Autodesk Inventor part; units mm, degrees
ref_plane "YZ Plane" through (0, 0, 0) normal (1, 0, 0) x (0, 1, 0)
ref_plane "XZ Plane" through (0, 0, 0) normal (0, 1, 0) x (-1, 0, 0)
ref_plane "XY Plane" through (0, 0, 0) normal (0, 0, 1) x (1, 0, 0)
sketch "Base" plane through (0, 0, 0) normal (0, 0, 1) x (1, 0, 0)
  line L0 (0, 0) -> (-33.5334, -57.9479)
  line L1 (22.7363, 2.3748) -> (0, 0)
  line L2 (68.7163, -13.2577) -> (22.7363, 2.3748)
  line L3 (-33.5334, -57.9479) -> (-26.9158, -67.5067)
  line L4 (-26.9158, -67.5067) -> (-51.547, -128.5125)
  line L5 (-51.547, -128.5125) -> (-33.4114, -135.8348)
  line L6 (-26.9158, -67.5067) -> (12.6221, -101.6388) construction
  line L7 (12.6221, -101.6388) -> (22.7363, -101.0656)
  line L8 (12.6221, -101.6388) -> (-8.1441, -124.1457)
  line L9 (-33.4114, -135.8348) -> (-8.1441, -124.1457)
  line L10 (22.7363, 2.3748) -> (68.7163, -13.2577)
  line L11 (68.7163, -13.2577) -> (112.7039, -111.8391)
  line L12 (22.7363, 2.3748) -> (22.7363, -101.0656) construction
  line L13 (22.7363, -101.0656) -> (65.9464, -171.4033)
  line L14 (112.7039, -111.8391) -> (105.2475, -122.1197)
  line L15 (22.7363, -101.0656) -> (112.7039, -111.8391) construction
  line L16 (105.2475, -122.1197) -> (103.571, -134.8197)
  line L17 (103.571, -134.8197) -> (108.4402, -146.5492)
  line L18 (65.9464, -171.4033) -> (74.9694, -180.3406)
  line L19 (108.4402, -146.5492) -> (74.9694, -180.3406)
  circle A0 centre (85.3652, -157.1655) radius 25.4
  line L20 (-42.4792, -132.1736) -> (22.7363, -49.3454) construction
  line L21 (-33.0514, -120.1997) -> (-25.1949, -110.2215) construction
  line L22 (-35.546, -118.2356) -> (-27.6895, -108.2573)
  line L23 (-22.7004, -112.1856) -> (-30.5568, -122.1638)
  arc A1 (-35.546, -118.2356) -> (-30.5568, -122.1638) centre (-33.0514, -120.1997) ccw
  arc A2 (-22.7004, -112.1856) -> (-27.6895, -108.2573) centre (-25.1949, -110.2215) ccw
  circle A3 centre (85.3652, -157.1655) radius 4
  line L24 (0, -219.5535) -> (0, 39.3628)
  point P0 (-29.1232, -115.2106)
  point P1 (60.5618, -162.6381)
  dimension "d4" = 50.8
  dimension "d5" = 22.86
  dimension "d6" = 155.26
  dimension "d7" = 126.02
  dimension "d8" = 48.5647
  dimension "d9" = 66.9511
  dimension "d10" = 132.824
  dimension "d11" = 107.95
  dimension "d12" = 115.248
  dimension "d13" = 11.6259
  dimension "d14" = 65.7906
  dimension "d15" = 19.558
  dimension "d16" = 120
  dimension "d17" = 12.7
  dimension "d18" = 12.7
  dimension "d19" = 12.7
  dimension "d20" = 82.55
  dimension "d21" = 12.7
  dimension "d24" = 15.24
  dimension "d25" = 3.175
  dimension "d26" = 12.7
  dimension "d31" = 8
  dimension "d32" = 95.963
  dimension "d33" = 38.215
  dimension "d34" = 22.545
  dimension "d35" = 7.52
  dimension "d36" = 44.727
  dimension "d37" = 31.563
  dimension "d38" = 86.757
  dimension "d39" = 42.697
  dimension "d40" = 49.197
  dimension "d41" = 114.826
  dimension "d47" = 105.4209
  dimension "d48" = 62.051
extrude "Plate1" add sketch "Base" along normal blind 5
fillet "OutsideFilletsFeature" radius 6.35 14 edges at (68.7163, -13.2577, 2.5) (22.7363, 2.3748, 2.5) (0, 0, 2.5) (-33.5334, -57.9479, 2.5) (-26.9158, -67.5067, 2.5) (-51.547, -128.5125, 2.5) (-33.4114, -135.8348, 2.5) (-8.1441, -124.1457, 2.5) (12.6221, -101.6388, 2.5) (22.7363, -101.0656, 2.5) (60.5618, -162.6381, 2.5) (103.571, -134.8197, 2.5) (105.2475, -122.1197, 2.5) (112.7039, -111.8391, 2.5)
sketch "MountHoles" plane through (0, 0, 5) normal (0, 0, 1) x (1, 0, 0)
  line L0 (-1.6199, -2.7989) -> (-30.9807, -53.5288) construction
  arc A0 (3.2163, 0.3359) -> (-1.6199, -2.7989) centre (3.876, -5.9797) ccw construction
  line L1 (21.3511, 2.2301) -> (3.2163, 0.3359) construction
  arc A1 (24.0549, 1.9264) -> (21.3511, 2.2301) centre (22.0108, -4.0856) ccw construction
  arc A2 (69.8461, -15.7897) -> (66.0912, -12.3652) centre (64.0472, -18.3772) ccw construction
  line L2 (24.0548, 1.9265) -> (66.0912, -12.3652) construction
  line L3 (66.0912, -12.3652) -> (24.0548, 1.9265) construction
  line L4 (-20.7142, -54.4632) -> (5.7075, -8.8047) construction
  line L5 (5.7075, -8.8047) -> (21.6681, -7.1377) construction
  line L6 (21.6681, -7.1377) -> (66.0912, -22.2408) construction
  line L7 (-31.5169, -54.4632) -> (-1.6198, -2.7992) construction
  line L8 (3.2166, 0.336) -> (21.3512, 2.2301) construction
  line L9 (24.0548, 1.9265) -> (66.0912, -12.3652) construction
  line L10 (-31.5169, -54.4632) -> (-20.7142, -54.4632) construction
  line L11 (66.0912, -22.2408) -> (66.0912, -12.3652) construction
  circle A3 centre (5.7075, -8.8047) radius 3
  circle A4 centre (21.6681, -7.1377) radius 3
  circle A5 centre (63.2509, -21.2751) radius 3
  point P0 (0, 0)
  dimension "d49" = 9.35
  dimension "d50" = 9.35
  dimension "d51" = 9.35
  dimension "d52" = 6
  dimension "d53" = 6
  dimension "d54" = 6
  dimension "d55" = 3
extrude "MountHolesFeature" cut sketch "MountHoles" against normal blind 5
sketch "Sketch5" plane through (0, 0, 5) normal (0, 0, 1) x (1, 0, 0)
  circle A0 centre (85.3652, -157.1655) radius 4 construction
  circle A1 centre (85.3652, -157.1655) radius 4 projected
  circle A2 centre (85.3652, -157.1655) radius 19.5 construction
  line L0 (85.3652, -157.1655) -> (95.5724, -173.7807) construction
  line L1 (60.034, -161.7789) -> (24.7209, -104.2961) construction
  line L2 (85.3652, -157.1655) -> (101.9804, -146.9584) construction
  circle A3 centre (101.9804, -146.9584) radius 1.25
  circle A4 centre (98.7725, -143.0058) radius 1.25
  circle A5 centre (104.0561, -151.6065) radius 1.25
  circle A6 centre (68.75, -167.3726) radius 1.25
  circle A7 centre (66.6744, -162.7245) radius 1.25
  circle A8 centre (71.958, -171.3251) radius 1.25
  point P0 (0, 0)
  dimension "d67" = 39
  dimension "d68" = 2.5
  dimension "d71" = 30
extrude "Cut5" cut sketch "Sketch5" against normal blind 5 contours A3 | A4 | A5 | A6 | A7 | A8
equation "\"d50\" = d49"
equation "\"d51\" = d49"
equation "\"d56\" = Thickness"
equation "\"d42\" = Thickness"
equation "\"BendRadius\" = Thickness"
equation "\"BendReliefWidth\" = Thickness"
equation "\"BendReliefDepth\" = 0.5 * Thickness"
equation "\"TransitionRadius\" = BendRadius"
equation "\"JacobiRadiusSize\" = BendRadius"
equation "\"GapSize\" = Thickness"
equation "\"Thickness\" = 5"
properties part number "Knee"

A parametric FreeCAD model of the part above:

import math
import FreeCAD as App
import Part
import Sketcher
Q = App.Units.Quantity


def edges_at(feature, points):
    """Names of the edges that pass closest to the given points."""
    edges = feature.Shape.Edges
    near = lambda p: min(range(len(edges)), key=lambda i: edges[i].distToShape(Part.Vertex(*p))[0])
    return sorted({f"Edge{near(p) + 1}" for p in points})

doc = App.newDocument("Part")
body = doc.addObject("PartDesign::Body", "Body")

sketch1 = body.newObject("Sketcher::SketchObject", "Sketch")
sketch1.AttachmentSupport = (doc.getObject("XY_Plane"), [""])
sketch1.MapMode = "FlatFace"
sketch1.addGeometry(Part.LineSegment(App.Vector(-8.1441, -124.1457, 0), App.Vector(12.6221, -101.6388, 0)), False)
sketch1.addGeometry(Part.LineSegment(App.Vector(12.6221, -101.6388, 0), App.Vector(22.7363, -101.0656, 0)), False)
sketch1.addGeometry(Part.LineSegment(App.Vector(22.7363, -101.0656, 0), App.Vector(60.561775, -162.638171, 0)), False)
sketch1.addGeometry(Part.ArcOfCircle(Part.Circle(App.Vector(85.3652, -157.1655, 0), App.Vector(0, 0, 1), 25.4), math.radians(-167.557515), math.radians(24.706119)), False)
sketch1.addGeometry(Part.LineSegment(App.Vector(108.4402, -146.5492, 0), App.Vector(103.571, -134.8197, 0)), False)
sketch1.addGeometry(Part.LineSegment(App.Vector(103.571, -134.8197, 0), App.Vector(105.2475, -122.1197, 0)), False)
sketch1.addGeometry(Part.LineSegment(App.Vector(105.2475, -122.1197, 0), App.Vector(112.7039, -111.8391, 0)), False)
sketch1.addGeometry(Part.LineSegment(App.Vector(112.7039, -111.8391, 0), App.Vector(68.7163, -13.2577, 0)), False)
sketch1.addGeometry(Part.LineSegment(App.Vector(68.7163, -13.2577, 0), App.Vector(22.7363, 2.3748, 0)), False)
sketch1.addGeometry(Part.LineSegment(App.Vector(22.7363, 2.3748, 0), App.Vector(0, 0, 0)), False)
sketch1.addGeometry(Part.LineSegment(App.Vector(0, 0, 0), App.Vector(-33.5334, -57.9479, 0)), False)
sketch1.addGeometry(Part.LineSegment(App.Vector(-33.5334, -57.9479, 0), App.Vector(-26.9158, -67.5067, 0)), False)
sketch1.addGeometry(Part.LineSegment(App.Vector(-26.9158, -67.5067, 0), App.Vector(-51.547, -128.5125, 0)), False)
sketch1.addGeometry(Part.LineSegment(App.Vector(-51.547, -128.5125, 0), App.Vector(-33.4114, -135.8348, 0)), False)
sketch1.addGeometry(Part.LineSegment(App.Vector(-33.4114, -135.8348, 0), App.Vector(-8.1441, -124.1457, 0)), False)
sketch1.addGeometry(Part.ArcOfCircle(Part.Circle(App.Vector(-33.0514, -120.1997, 0), App.Vector(0, 0, 1), 3.175015), math.radians(141.785203), math.radians(321.785203)), False)
sketch1.addGeometry(Part.LineSegment(App.Vector(-35.546, -118.2356, 0), App.Vector(-27.6895, -108.2573, 0)), False)
sketch1.addGeometry(Part.ArcOfCircle(Part.Circle(App.Vector(-25.1949, -110.2215, 0), App.Vector(0, 0, 1), 3.174936), math.radians(-38.215913), math.radians(141.783786)), False)
sketch1.addGeometry(Part.LineSegment(App.Vector(-22.7004, -112.1856, 0), App.Vector(-30.5568, -122.1638, 0)), False)
sketch1.addGeometry(Part.Circle(App.Vector(85.3652, -157.1655, 0), App.Vector(0, 0, 1), 4), False)
sketch1.addConstraint(Sketcher.Constraint("Coincident", 0, 2, 1, 1))
sketch1.addConstraint(Sketcher.Constraint("Coincident", 1, 2, 2, 1))
sketch1.addConstraint(Sketcher.Constraint("Coincident", 2, 2, 3, 1))
sketch1.addConstraint(Sketcher.Constraint("Coincident", 3, 2, 4, 1))
sketch1.addConstraint(Sketcher.Constraint("Coincident", 4, 2, 5, 1))
sketch1.addConstraint(Sketcher.Constraint("Coincident", 5, 2, 6, 1))
sketch1.addConstraint(Sketcher.Constraint("Coincident", 6, 2, 7, 1))
sketch1.addConstraint(Sketcher.Constraint("Coincident", 7, 2, 8, 1))
sketch1.addConstraint(Sketcher.Constraint("Coincident", 8, 2, 9, 1))
sketch1.addConstraint(Sketcher.Constraint("Coincident", 9, 2, 10, 1))
sketch1.addConstraint(Sketcher.Constraint("Coincident", 10, 2, 11, 1))
sketch1.addConstraint(Sketcher.Constraint("Coincident", 11, 2, 12, 1))
sketch1.addConstraint(Sketcher.Constraint("Coincident", 12, 2, 13, 1))
sketch1.addConstraint(Sketcher.Constraint("Coincident", 13, 2, 14, 1))
sketch1.addConstraint(Sketcher.Constraint("Coincident", 14, 2, 0, 1))
sketch1.addConstraint(Sketcher.Constraint("Tangent", 15, 1, 16, 1))
sketch1.addConstraint(Sketcher.Constraint("Tangent", 16, 2, 17, 2))
sketch1.addConstraint(Sketcher.Constraint("Tangent", 17, 1, 18, 1))
sketch1.addConstraint(Sketcher.Constraint("Tangent", 18, 2, 15, 2))
sketch1.addConstraint(Sketcher.Constraint("Coincident", 9, 2, -1, 1))
sketch1.addConstraint(Sketcher.Constraint("Coincident", 19, 3, 3, 3))
sketch1.addConstraint(Sketcher.Constraint("Equal", 15, 17))
sketch1.addConstraint(Sketcher.Constraint("Perpendicular", 12, 13))
sketch1.addConstraint(Sketcher.Constraint("Vertical", 1, 2, 8, 2))
sketch1.addConstraint(Sketcher.Constraint("Equal", 4, 6))
sketch1.addConstraint(Sketcher.Constraint("Equal", 6, 16))
sketch1.addConstraint(Sketcher.Constraint("Radius", 3, Q("1 in")))
sketch1.addConstraint(Sketcher.Constraint("Radius", 15, Q("0.125 in")))
sketch1.addConstraint(Sketcher.Constraint("Distance", 4, Q("0.5 in")))
sketch1.addConstraint(Sketcher.Constraint("Distance", 9, Q("0.9 in")))
sketch1.addConstraint(Sketcher.Constraint("DistanceY", 4, 2, 5, 2, Q("0.5 in")))
sketch1.addConstraint(Sketcher.Constraint("Distance", 7, Q("4.25 in")))
sketch1.addConstraint(Sketcher.Constraint("Distance", 13, Q("0.77 in")))
sketch1.addConstraint(Sketcher.Constraint("Diameter", 19, Q("8 mm")))
sketch1.addConstraint(Sketcher.Constraint("Distance", 8, Q("1.912 in")))
sketch1.addConstraint(Sketcher.Constraint("Distance", 10, Q("66.951 mm")))
sketch1.addConstraint(Sketcher.Constraint("Distance", 11, Q("11.626 mm")))
sketch1.addConstraint(Sketcher.Constraint("Distance", 12, Q("65.7906 mm")))
sketch1.addConstraint(Sketcher.Constraint("Angle", 5, Q("82.48 deg")))
sketch1.addConstraint(Sketcher.Constraint("Distance", 2, Q("2.845 in")))
sketch1.addConstraint(Sketcher.Constraint("DistanceY", 1, 2, 7, 2, Q("3.457 in")))
sketch1.addConstraint(Sketcher.Constraint("DistanceX", 12, 2, 13, 2, Q("0.714 in")))
sketch1.addConstraint(Sketcher.Constraint("DistanceX", -1, 1, 3, 2, Q("4.2693 in")))
sketch1.addConstraint(Sketcher.Constraint("DistanceX", -1, 1, 4, 2, Q("4.0776 in")))
sketch1.addConstraint(Sketcher.Constraint("DistanceY", -1, 1, 8, 2, Q("0.0935 in")))
sketch1.addConstraint(Sketcher.Constraint("DistanceX", 12, 2, -1, 1, Q("2.0294 in")))
sketch1.addConstraint(Sketcher.Constraint("DistanceY", 16, 2, -1, 1, Q("4.2621 in")))
sketch1.addConstraint(Sketcher.Constraint("DistanceY", 18, 2, -1, 1, Q("4.8096 in")))
sketch1.addConstraint(Sketcher.Constraint("DistanceY", 3, 3, 17, 3, Q("1.8482 in")))
sketch1.addConstraint(Sketcher.Constraint("DistanceY", 17, 3, 0, 2, Q("0.3379 in")))
sketch1.addConstraint(Sketcher.Constraint("DistanceX", 0, 2, 3, 3, Q("2.8639 in")))
sketch1.addConstraint(Sketcher.Constraint("DistanceX", 0, 2, 1, 2, Q("0.3982 in")))
sketch1.addConstraint(Sketcher.Constraint("DistanceY", 15, 3, 1, 2, Q("0.7533 in")))
sketch1.addConstraint(Sketcher.Constraint("DistanceX", 12, 2, 10, 2, Q("0.7092 in")))
sketch1.addConstraint(Sketcher.Constraint("DistanceX", 17, 3, 14, 2, Q("0.6713 in")))
sketch1.addConstraint(Sketcher.Constraint("DistanceY", 14, 2, 17, 3, Q("0.5482 in")))
sketch1.addConstraint(Sketcher.Constraint("Distance", 0, Q("30.6234 mm")))
pad1 = body.newObject("PartDesign::Pad", "Pad")
pad1.Profile = sketch1
pad1.Length = 5
doc.recompute()

fillet = body.newObject("PartDesign::Fillet", "Fillet")
fillet.Base = (pad1, edges_at(pad1, [
    (68.716, -13.258, 2.5),
    (22.736, 2.375, 2.5),
    (0, 0, 2.5),
    (-33.533, -57.948, 2.5),
    (-26.916, -67.507, 2.5),
    (-51.547, -128.512, 2.5),
    (-33.411, -135.835, 2.5),
    (-8.144, -124.146, 2.5),
    (12.622, -101.639, 2.5),
    (22.736, -101.066, 2.5),
    (60.562, -162.638, 2.5),
    (103.571, -134.82, 2.5),
    (105.248, -122.12, 2.5),
    (112.704, -111.839, 2.5),
]))
fillet.Radius = Q("0.25 in")

sketch2 = body.newObject("Sketcher::SketchObject", "Sketch001")
sketch2.AttachmentSupport = (doc.getObject("XY_Plane"), [""])
sketch2.MapMode = "FlatFace"
sketch2.AttachmentOffset = App.Placement(App.Vector(0, 0, 5), App.Rotation())
sketch2.addGeometry(Part.Circle(App.Vector(5.7075, -8.8047, 0), App.Vector(0, 0, 1), 3), False)
sketch2.addGeometry(Part.Circle(App.Vector(21.6681, -7.1377, 0), App.Vector(0, 0, 1), 3), False)
sketch2.addGeometry(Part.Circle(App.Vector(63.2509, -21.2751, 0), App.Vector(0, 0, 1), 3), False)
sketch2.addConstraint(Sketcher.Constraint("Equal", 0, 1))
sketch2.addConstraint(Sketcher.Constraint("Equal", 1, 2))
sketch2.addConstraint(Sketcher.Constraint("Diameter", 0, Q("6 mm")))
sketch2.addConstraint(Sketcher.Constraint("DistanceY", 1, 3, -1, 1, Q("0.281 in")))
sketch2.addConstraint(Sketcher.Constraint("DistanceX", -1, 1, 0, 3, Q("0.2247 in")))
sketch2.addConstraint(Sketcher.Constraint("DistanceX", -1, 1, 2, 3, Q("2.4902 in")))
sketch2.addConstraint(Sketcher.Constraint("DistanceY", 2, 3, -1, 1, Q("0.8376 in")))
sketch2.addConstraint(Sketcher.Constraint("DistanceY", 0, 3, -1, 1, Q("8.8047 mm")))
sketch2.addConstraint(Sketcher.Constraint("DistanceX", -1, 1, 1, 3, Q("21.668 mm")))
pocket1 = body.newObject("PartDesign::Pocket", "Pocket")
pocket1.Profile = sketch2
pocket1.Length = 5

sketch3 = body.newObject("Sketcher::SketchObject", "Sketch002")
sketch3.AttachmentSupport = (doc.getObject("XY_Plane"), [""])
sketch3.MapMode = "FlatFace"
sketch3.AttachmentOffset = App.Placement(App.Vector(0, 0, 5), App.Rotation())
sketch3.addGeometry(Part.Circle(App.Vector(101.9804, -146.9584, 0), App.Vector(0, 0, 1), 1.25), False)
sketch3.addGeometry(Part.Circle(App.Vector(98.7725, -143.0058, 0), App.Vector(0, 0, 1), 1.25), False)
sketch3.addGeometry(Part.Circle(App.Vector(104.0561, -151.6065, 0), App.Vector(0, 0, 1), 1.25), False)
sketch3.addGeometry(Part.Circle(App.Vector(68.75, -167.3726, 0), App.Vector(0, 0, 1), 1.25), False)
sketch3.addGeometry(Part.Circle(App.Vector(66.6744, -162.7245, 0), App.Vector(0, 0, 1), 1.25), False)
sketch3.addGeometry(Part.Circle(App.Vector(71.958, -171.3251, 0), App.Vector(0, 0, 1), 1.25), False)
sketch3.addConstraint(Sketcher.Constraint("Equal", 0, 1))
sketch3.addConstraint(Sketcher.Constraint("Equal", 1, 2))
sketch3.addConstraint(Sketcher.Constraint("Equal", 2, 3))
sketch3.addConstraint(Sketcher.Constraint("Equal", 3, 4))
sketch3.addConstraint(Sketcher.Constraint("Equal", 4, 5))
sketch3.addConstraint(Sketcher.Constraint("Diameter", 0, Q("2.5 mm")))
sketch3.addConstraint(Sketcher.Constraint("DistanceX", 3, 3, 2, 3, Q("1.39 in")))
sketch3.addConstraint(Sketcher.Constraint("DistanceX", 4, 3, 0, 3, Q("1.39 in")))
sketch3.addConstraint(Sketcher.Constraint("DistanceX", -1, 1, 5, 3, Q("2.833 in")))
sketch3.addConstraint(Sketcher.Constraint("DistanceY", 2, 3, 0, 3, Q("0.183 in")))
sketch3.addConstraint(Sketcher.Constraint("DistanceX", 3, 3, 1, 3, Q("1.182 in")))
sketch3.addConstraint(Sketcher.Constraint("DistanceY", 3, 3, 4, 3, Q("0.183 in")))
sketch3.addConstraint(Sketcher.Constraint("DistanceX", -1, 1, 2, 3, Q("4.0967 in")))
sketch3.addConstraint(Sketcher.Constraint("DistanceX", 1, 3, 0, 3, Q("0.1263 in")))
sketch3.addConstraint(Sketcher.Constraint("DistanceY", 2, 3, 1, 3, Q("0.3386 in")))
sketch3.addConstraint(Sketcher.Constraint("DistanceY", 3, 3, 0, 3, Q("0.8037 in")))
sketch3.addConstraint(Sketcher.Constraint("DistanceY", 5, 3, 3, 3, Q("0.1556 in")))
sketch3.addConstraint(Sketcher.Constraint("DistanceY", 0, 3, -1, 1, Q("146.9584 mm")))
pocket2 = body.newObject("PartDesign::Pocket", "Pocket001")
pocket2.Profile = sketch3
pocket2.Length = 5

doc.recompute()
